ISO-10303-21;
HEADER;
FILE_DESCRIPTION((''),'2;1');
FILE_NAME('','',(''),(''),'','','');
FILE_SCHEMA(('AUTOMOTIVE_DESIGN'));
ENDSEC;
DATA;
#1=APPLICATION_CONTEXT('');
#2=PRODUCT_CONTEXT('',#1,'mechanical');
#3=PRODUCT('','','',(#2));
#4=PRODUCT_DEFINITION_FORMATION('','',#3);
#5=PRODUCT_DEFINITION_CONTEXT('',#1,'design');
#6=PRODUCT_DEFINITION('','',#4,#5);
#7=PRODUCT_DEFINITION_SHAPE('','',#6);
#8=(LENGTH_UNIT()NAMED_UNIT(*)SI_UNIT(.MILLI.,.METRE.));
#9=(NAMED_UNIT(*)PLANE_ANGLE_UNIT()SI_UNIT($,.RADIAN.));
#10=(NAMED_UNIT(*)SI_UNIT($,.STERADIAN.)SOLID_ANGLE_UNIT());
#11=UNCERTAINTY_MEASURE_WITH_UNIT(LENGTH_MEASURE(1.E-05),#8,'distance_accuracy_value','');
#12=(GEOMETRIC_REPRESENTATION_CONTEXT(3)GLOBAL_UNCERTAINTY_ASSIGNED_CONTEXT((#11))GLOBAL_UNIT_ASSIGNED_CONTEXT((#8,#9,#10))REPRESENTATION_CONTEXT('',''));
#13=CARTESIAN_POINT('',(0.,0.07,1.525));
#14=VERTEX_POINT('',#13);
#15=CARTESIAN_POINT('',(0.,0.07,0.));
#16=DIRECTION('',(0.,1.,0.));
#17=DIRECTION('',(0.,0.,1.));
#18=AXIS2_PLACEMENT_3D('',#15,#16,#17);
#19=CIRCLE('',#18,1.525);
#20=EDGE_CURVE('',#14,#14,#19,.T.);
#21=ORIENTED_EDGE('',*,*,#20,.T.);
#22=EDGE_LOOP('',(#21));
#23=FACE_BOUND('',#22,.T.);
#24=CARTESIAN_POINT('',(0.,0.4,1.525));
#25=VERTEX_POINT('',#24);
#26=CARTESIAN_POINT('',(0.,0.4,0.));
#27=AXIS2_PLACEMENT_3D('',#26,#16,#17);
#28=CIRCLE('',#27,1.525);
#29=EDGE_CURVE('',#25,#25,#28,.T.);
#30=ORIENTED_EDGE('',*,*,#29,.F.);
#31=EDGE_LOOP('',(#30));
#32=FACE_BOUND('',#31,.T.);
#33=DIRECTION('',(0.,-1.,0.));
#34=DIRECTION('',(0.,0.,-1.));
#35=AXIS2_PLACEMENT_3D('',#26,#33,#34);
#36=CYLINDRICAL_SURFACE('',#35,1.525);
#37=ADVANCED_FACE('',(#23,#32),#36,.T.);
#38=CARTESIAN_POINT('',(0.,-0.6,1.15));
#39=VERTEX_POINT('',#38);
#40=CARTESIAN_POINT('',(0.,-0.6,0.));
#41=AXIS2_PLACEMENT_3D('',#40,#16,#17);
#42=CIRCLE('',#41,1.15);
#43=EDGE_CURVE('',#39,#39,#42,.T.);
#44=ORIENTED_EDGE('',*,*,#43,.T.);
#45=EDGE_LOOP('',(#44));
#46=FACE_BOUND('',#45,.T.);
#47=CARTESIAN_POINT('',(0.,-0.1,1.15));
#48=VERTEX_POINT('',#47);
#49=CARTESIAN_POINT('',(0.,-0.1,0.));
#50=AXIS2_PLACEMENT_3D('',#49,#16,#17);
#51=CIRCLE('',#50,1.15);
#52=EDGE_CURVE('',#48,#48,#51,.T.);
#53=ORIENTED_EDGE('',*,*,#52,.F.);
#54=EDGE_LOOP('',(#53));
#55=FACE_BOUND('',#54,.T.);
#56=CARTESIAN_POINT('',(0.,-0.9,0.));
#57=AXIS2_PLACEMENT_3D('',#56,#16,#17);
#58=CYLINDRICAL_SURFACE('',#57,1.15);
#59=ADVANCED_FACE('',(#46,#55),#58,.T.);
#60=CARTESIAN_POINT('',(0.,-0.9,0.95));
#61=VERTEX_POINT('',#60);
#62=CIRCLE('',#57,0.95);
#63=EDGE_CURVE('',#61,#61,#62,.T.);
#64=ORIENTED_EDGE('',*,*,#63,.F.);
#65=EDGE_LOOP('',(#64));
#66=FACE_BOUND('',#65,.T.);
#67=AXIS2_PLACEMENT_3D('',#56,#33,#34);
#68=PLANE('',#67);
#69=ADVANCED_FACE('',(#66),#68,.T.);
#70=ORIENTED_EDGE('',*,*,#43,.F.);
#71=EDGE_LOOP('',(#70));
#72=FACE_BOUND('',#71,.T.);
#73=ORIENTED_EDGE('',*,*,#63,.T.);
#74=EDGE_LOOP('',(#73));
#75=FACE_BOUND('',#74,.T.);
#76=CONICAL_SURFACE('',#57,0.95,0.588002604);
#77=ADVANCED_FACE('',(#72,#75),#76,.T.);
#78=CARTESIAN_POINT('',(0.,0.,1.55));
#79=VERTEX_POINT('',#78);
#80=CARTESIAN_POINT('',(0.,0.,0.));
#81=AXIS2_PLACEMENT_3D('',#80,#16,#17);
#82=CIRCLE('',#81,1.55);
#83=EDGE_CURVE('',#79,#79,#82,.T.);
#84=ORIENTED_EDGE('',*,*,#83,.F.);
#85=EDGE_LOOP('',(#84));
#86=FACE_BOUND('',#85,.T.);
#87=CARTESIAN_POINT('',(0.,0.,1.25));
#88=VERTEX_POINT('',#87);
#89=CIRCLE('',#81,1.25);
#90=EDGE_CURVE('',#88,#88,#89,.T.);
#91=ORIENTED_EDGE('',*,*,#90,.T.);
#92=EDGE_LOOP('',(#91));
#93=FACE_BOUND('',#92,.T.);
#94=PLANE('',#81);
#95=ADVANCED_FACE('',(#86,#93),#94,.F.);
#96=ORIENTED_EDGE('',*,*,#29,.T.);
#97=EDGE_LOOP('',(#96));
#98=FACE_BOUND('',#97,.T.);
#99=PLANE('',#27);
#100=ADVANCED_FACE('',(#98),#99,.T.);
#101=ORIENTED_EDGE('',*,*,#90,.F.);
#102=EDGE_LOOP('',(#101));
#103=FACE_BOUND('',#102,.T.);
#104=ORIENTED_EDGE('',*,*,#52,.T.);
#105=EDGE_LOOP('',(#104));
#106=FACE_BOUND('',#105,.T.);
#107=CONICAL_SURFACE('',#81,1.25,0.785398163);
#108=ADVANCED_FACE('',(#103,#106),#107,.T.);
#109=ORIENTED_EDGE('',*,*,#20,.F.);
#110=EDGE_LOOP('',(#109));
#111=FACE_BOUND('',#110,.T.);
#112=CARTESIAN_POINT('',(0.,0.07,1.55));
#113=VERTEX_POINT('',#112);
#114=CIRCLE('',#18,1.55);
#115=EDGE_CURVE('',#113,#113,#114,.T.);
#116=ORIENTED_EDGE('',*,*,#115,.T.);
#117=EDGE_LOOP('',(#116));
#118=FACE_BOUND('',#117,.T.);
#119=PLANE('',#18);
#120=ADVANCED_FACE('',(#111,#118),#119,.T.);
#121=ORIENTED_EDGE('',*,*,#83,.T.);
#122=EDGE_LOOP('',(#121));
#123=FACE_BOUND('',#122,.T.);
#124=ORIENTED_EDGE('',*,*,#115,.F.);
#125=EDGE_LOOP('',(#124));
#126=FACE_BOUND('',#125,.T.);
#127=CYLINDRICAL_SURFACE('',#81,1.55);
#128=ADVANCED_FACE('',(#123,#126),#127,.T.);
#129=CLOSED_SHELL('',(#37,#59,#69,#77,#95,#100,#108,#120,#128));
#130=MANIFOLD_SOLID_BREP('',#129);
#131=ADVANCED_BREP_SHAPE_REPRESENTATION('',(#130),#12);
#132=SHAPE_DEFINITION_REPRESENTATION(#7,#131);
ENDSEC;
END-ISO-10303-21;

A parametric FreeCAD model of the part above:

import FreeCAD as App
import Part
import Sketcher
from FreeCAD import Vector
Q = App.Units.Quantity


def add_polygon(sketch, points):
    """Adds a closed chain of lines whose ends are joined by coincident constraints."""
    first, n = sketch.GeometryCount, len(points)
    for a, b in zip(points, points[1:] + points[:1]):
        sketch.addGeometry(Part.LineSegment(App.Vector(*a, 0), App.Vector(*b, 0)), False)
    for i in range(n):
        sketch.addConstraint(Sketcher.Constraint("Coincident", first + i, 2, first + (i + 1) % n, 1))

doc = App.newDocument("Part")
body = doc.addObject("PartDesign::Body", "Body")

# Sketch on XZ plane
sketch1 = body.newObject("Sketcher::SketchObject", "Sketch")
sketch1.AttachmentSupport = (doc.getObject("XZ_Plane"), [""])
sketch1.MapMode = "FlatFace"
sketch1.addGeometry(Part.Circle(Vector(0, 0, 0), Vector(0, 0, 1), 1.5), False)
sketch1.addConstraint([
    Sketcher.Constraint("Coincident", 0, 3, -1, 1),
    Sketcher.Constraint("Diameter", 0, Q("3.05 mm")),
])
pad1 = body.newObject("PartDesign::Pad", "Pad")
pad1.Profile = sketch1
pad1.Length = 0.4
pad1.Reversed = True

# Sketch on XZ plane
sketch2 = body.newObject("Sketcher::SketchObject", "Sketch001")
sketch2.AttachmentSupport = (doc.getObject("XZ_Plane"), [""])
sketch2.MapMode = "FlatFace"
sketch2.AttachmentOffset = App.Placement(Vector(0, 0, -0.07), App.Rotation())
sketch2.addGeometry(Part.Circle(Vector(0, 0, 0), Vector(0, 0, 1), 1.6), False)
sketch2.addConstraint([
    Sketcher.Constraint("Coincident", 0, 3, -1, 1),
    Sketcher.Constraint("Diameter", 0, Q("3.1 mm")),
])
pad2 = body.newObject("PartDesign::Pad", "Pad001")
pad2.Profile = sketch2
pad2.Length = 0.07

# Sketch on XZ plane
sketch3 = body.newObject("Sketcher::SketchObject", "Sketch002")
sketch3.AttachmentSupport = (doc.getObject("XZ_Plane"), [""])
sketch3.MapMode = "FlatFace"
sketch3.addGeometry(Part.Circle(Vector(0, 0, 0), Vector(0, 0, 1), 1.1), False)
sketch3.addConstraint([
    Sketcher.Constraint("Coincident", 0, 3, -1, 1),
    Sketcher.Constraint("Diameter", 0, Q("2.3 mm")),
])
pad3 = body.newObject("PartDesign::Pad", "Pad002")
pad3.Profile = sketch3
pad3.Length = 0.9

# Sketch on XY plane
sketch4 = body.newObject("Sketcher::SketchObject", "Sketch003")
sketch4.AttachmentSupport = (doc.getObject("XY_Plane"), [""])
sketch4.MapMode = "FlatFace"
add_polygon(sketch4, [(-0.95, -0.9), (-1.15, -0.6), (-1.15, -0.9)])  # lines 0-2
sketch4.addConstraint([
    Sketcher.Constraint("Vertical", 1),
    Sketcher.Constraint("Horizontal", 2),
    Sketcher.Constraint("DistanceX", 2, 1, 2, 2, Q("0.2 mm")),
    Sketcher.Constraint("DistanceY", 1, 2, 1, 1, Q("0.3 mm")),
    Sketcher.Constraint("DistanceY", 0, 2, -1, 1, Q("0.6 mm")),
    Sketcher.Constraint("DistanceX", 0, 2, -1, 1, Q("1.15 mm")),
])
groove = body.newObject("PartDesign::Groove", "Groove")
groove.Profile = sketch4
groove.ReferenceAxis = (sketch4, ["V_Axis"])
groove.Angle = 360

# Sketch on XY plane
sketch5 = body.newObject("Sketcher::SketchObject", "Sketch004")
sketch5.AttachmentSupport = (doc.getObject("XY_Plane"), [""])
sketch5.MapMode = "FlatFace"
add_polygon(sketch5, [(-1.25, 0), (-1.15, -0.1), (-1.15, 0)])  # lines 0-2
sketch5.addConstraint([
    Sketcher.Constraint("Vertical", 1),
    Sketcher.Constraint("Horizontal", 2),
    Sketcher.Constraint("PointOnObject", 1, 2, -1),
    Sketcher.Constraint("Equal", 2, 1),
    Sketcher.Constraint("DistanceX", 2, 2, 2, 1, Q("0.1 mm")),
    Sketcher.Constraint("DistanceX", 0, 2, -1, 1, Q("1.15 mm")),
])
revolution = body.newObject("PartDesign::Revolution", "Revolution")
revolution.Profile = sketch5
revolution.ReferenceAxis = (sketch5, ["V_Axis"])
revolution.Angle = 360

doc.recompute()
